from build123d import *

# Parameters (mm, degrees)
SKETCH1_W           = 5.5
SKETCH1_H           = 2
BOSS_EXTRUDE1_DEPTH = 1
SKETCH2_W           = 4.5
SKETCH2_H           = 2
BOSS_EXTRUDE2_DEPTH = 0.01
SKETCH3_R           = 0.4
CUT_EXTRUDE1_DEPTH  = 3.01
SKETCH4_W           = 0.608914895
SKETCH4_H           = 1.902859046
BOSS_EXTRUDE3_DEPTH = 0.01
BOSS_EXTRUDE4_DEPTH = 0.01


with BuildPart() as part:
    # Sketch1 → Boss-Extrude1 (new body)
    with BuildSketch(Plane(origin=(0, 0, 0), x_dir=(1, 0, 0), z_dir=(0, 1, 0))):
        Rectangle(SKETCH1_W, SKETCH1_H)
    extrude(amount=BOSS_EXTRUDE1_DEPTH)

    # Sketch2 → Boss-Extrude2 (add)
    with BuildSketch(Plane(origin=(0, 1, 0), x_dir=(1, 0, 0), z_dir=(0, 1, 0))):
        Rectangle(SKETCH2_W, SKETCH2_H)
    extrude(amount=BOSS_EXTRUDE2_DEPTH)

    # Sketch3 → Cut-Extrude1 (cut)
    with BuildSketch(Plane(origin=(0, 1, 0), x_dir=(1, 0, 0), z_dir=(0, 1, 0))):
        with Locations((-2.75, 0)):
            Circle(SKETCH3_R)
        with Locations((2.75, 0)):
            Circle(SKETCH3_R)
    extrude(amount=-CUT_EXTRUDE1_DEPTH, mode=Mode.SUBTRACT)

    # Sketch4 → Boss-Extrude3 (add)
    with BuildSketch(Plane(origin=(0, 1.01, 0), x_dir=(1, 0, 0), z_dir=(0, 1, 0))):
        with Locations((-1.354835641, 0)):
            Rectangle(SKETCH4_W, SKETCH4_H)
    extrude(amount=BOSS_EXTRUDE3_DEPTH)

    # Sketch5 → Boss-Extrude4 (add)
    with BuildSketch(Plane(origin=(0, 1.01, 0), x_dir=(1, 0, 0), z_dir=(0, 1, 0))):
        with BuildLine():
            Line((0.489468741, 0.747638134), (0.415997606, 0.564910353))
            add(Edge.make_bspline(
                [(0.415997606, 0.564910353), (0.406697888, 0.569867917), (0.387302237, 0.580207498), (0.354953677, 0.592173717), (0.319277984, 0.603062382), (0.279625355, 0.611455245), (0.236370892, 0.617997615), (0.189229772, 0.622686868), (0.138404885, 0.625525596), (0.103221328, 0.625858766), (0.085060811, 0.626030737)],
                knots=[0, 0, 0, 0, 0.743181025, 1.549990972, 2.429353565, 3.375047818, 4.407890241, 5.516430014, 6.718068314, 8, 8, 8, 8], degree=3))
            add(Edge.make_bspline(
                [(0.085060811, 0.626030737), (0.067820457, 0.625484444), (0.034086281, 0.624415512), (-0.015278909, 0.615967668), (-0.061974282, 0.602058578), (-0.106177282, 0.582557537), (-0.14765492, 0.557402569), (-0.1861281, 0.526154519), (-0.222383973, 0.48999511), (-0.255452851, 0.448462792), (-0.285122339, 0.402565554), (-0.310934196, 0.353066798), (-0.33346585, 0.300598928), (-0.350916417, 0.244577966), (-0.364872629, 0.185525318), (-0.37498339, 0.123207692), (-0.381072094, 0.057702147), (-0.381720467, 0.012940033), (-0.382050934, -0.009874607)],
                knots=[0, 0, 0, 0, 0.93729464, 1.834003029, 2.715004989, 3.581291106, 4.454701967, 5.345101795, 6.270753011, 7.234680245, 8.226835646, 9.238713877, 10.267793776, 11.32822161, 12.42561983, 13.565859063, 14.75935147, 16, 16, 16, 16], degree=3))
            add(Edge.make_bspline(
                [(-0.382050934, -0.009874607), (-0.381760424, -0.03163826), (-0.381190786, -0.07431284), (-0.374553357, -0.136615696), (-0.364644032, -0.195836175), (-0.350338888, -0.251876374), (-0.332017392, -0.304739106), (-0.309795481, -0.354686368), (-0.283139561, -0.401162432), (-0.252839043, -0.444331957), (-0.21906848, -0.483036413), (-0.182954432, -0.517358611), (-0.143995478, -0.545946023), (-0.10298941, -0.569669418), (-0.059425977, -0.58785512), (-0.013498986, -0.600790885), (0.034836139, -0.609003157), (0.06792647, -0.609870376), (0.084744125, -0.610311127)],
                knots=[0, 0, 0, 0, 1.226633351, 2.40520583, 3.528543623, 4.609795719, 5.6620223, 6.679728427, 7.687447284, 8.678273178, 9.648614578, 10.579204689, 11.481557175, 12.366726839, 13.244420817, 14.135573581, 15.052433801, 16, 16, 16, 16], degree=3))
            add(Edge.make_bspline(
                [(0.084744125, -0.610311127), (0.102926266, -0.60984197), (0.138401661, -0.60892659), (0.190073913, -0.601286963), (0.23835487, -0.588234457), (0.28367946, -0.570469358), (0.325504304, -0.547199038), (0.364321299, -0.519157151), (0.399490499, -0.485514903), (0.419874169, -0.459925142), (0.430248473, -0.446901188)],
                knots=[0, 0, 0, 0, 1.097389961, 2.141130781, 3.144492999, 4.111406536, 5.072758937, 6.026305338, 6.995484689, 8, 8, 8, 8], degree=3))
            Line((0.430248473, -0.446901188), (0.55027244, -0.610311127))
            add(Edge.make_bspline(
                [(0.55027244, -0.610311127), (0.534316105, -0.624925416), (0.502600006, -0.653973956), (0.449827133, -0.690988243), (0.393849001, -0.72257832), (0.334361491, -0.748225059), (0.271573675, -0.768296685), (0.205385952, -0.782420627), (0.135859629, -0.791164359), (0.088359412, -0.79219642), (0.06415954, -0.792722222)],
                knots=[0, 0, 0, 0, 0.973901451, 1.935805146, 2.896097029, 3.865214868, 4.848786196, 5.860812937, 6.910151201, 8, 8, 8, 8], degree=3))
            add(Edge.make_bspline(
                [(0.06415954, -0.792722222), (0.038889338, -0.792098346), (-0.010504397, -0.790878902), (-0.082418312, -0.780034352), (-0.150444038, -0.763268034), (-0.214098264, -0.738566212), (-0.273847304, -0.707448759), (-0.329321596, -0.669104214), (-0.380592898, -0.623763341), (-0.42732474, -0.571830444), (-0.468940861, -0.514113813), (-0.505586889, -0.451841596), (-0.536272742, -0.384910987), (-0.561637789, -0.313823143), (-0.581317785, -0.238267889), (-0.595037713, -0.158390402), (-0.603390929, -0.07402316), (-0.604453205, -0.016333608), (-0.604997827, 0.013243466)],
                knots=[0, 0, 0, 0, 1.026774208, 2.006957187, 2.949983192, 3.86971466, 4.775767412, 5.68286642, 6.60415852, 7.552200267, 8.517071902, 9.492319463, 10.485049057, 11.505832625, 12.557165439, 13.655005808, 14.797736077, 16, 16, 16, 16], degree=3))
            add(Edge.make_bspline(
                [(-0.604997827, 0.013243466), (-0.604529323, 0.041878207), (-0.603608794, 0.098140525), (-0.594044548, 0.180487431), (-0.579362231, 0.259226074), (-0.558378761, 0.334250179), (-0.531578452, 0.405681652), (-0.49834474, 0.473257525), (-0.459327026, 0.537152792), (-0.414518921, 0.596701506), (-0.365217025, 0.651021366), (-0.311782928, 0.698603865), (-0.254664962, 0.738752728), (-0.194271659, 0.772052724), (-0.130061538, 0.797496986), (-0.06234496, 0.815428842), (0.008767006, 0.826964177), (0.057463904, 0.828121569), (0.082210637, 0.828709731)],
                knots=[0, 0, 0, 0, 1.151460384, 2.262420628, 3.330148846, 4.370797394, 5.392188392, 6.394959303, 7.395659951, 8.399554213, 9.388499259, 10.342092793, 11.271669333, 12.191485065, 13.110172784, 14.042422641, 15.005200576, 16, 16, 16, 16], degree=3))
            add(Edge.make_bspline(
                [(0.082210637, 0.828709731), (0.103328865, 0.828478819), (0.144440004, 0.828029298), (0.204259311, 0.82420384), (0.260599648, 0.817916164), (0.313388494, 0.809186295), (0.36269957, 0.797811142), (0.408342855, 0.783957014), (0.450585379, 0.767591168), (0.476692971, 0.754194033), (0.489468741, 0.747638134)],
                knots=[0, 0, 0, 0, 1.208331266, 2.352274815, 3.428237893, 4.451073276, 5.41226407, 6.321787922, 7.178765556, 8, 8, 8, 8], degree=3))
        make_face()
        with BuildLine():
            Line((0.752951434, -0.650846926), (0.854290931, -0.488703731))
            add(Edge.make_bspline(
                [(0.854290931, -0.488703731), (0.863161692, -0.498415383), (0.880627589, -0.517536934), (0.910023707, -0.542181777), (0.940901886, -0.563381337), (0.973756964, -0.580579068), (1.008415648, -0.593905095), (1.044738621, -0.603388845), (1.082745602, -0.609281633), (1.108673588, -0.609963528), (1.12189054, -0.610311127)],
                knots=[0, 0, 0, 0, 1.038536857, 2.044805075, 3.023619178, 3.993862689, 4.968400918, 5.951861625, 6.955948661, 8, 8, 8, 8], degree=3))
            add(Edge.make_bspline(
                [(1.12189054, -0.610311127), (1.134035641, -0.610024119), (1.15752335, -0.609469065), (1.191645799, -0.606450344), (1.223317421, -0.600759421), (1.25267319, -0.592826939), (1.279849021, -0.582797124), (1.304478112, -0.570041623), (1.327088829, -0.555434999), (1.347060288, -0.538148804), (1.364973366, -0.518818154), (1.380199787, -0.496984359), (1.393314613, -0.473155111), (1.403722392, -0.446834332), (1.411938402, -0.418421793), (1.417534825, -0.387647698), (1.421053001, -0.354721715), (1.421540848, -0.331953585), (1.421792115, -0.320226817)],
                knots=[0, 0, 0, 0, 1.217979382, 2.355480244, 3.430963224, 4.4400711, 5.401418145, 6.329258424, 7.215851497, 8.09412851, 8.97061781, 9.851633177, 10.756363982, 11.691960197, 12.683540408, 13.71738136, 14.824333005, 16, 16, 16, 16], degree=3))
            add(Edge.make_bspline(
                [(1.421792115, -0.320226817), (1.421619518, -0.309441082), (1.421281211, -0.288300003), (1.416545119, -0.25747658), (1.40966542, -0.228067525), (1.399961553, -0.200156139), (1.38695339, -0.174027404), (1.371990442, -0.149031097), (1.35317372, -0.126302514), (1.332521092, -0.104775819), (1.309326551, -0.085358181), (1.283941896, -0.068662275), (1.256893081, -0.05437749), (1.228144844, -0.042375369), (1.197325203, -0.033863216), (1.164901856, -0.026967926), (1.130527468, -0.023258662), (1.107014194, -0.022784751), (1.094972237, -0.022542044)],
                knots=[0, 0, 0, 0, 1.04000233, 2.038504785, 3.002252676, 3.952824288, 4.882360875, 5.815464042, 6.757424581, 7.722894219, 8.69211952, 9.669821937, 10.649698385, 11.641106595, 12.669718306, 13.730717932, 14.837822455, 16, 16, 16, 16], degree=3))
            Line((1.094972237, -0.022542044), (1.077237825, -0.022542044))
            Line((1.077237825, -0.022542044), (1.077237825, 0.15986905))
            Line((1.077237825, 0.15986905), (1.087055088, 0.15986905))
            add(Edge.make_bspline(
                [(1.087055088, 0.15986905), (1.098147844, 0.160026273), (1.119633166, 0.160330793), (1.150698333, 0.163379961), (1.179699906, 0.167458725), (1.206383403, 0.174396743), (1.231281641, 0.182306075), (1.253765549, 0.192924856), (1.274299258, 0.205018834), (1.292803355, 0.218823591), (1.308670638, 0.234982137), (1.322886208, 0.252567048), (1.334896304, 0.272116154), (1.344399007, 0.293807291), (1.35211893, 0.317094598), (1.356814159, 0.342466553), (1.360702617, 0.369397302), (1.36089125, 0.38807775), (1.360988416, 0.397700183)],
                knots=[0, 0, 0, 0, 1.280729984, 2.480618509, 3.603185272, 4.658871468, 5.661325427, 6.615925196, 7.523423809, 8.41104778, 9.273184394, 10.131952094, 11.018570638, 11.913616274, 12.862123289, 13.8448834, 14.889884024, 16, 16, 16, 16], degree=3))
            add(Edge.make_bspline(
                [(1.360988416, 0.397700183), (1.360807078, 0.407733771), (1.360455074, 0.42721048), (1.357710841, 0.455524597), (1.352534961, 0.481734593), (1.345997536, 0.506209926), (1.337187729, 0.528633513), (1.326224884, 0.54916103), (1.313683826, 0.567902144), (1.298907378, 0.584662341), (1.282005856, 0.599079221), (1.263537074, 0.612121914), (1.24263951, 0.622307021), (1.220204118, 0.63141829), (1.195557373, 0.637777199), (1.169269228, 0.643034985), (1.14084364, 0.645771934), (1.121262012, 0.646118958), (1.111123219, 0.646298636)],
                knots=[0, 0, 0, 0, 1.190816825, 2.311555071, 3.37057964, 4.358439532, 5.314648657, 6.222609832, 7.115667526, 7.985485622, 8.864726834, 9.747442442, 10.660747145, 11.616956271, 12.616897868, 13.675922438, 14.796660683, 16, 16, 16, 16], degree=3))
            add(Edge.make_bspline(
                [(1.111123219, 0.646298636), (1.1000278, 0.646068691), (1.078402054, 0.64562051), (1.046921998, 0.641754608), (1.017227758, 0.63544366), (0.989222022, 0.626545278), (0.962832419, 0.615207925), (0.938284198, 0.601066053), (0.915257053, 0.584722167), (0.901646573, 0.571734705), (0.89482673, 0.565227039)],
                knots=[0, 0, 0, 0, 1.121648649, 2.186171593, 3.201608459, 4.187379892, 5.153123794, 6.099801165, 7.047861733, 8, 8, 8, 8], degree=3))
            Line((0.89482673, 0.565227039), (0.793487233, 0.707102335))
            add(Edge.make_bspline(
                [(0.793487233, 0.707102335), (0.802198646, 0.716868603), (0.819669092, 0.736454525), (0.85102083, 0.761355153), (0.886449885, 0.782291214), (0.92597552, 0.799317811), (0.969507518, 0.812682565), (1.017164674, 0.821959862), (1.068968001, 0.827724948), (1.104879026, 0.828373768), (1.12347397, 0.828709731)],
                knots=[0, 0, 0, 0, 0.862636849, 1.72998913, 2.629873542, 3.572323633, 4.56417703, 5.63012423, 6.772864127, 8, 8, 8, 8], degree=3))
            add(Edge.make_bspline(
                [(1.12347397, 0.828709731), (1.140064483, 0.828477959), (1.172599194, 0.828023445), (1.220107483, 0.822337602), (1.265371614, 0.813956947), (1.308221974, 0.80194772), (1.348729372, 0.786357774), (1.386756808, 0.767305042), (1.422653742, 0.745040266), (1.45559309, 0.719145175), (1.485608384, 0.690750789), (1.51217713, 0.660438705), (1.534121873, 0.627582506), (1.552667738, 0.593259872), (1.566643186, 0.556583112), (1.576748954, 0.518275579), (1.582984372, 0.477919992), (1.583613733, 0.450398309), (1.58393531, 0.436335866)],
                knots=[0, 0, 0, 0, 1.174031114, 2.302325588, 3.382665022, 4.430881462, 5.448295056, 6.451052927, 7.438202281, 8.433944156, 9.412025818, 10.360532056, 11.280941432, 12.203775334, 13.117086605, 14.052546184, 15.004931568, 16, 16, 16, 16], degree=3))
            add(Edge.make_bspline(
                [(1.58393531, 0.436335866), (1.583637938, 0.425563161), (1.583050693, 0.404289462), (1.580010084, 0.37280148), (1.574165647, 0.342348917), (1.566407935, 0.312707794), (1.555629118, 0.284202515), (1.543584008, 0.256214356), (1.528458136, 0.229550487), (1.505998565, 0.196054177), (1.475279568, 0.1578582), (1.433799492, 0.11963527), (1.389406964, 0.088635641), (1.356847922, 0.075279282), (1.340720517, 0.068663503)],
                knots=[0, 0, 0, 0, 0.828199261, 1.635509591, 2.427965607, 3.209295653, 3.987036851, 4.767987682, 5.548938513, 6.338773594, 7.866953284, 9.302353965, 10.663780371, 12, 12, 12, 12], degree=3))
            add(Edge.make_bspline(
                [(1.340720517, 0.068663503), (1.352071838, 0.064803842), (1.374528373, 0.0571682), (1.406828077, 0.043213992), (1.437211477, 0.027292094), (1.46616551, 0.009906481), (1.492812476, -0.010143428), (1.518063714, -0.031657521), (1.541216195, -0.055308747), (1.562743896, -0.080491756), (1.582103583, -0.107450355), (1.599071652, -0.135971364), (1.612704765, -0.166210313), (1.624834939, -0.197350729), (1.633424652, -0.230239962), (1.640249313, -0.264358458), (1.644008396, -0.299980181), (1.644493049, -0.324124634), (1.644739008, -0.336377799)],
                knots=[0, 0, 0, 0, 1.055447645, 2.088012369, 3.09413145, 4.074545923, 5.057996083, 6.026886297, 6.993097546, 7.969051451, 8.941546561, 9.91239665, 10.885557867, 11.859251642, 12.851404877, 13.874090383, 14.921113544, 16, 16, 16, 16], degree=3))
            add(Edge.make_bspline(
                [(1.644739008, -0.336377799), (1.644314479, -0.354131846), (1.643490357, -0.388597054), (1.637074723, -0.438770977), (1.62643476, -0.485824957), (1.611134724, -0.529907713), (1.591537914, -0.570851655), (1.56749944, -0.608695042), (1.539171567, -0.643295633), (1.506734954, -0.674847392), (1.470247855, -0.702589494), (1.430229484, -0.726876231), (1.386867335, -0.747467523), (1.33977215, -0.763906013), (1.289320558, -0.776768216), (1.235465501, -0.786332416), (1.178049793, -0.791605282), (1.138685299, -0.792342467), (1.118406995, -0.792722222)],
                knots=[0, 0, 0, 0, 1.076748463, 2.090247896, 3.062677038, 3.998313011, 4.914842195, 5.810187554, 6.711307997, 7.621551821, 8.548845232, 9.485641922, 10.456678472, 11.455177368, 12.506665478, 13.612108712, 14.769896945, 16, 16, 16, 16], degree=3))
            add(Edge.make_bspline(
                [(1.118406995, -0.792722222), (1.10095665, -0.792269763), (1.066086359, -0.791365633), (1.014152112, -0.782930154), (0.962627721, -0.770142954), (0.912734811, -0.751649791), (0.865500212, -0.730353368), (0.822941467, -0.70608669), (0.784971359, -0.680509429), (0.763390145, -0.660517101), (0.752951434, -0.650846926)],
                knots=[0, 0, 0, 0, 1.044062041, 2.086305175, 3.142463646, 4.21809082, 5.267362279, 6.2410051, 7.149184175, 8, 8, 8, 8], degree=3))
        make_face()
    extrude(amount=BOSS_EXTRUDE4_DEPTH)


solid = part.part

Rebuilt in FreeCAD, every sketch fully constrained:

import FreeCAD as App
import Part
import Sketcher

V = App.Vector


def add_polygon(sketch, points):
    """Adds a closed chain of lines whose ends are joined by coincident constraints."""
    first, n = sketch.GeometryCount, len(points)
    for a, b in zip(points, points[1:] + points[:1]):
        sketch.addGeometry(Part.LineSegment(App.Vector(*a, 0), App.Vector(*b, 0)), False)
    for i in range(n):
        sketch.addConstraint(Sketcher.Constraint("Coincident", first + i, 2, first + (i + 1) % n, 1))

doc = App.newDocument("Part")
body = doc.addObject("PartDesign::Body", "Body")

# Sketch on XZ plane
sketch1 = body.newObject("Sketcher::SketchObject", "Sketch")
sketch1.AttachmentSupport = (doc.getObject("XZ_Plane"), [""])
sketch1.MapMode = "FlatFace"
add_polygon(sketch1, [(-2.75, -1), (-2.75, 1), (2.75, 1), (2.75, -1)])  # lines 0-3
sketch1.addConstraint([
    Sketcher.Constraint("Vertical", 0),
    Sketcher.Constraint("Horizontal", 1),
    Sketcher.Constraint("Vertical", 2),
    Sketcher.Constraint("Horizontal", 3),
    Sketcher.Constraint("Symmetric", 0, 2, 2, 2, -1, 1),
    Sketcher.Constraint("DistanceY", 0, 1, 0, 2, 2.0),
    Sketcher.Constraint("DistanceX", 1, 1, 1, 2, 5.5),
])
pad1 = body.newObject("PartDesign::Pad", "Pad")
pad1.Profile = sketch1
pad1.Length = 1
pad1.Reversed = True

# Sketch on XZ plane
sketch2 = body.newObject("Sketcher::SketchObject", "Sketch001")
sketch2.AttachmentSupport = (doc.getObject("XZ_Plane"), [""])
sketch2.MapMode = "FlatFace"
sketch2.AttachmentOffset = App.Placement(V(0, 0, -1), App.Rotation())
add_polygon(sketch2, [(-2.25, -1), (-2.25, 1), (2.25, 1), (2.25, -1)])  # lines 0-3
sketch2.addConstraint([
    Sketcher.Constraint("Vertical", 0),
    Sketcher.Constraint("Horizontal", 1),
    Sketcher.Constraint("Vertical", 2),
    Sketcher.Constraint("Horizontal", 3),
    Sketcher.Constraint("Symmetric", 0, 2, 2, 2, -1, 1),
    Sketcher.Constraint("DistanceY", 0, 1, 0, 2, 2.0),
    Sketcher.Constraint("DistanceX", 1, 1, 1, 2, 4.5),
])
pad2 = body.newObject("PartDesign::Pad", "Pad001")
pad2.Profile = sketch2
pad2.Length = 0.01
pad2.Reversed = True

# Sketch on XZ plane
sketch3 = body.newObject("Sketcher::SketchObject", "Sketch002")
sketch3.AttachmentSupport = (doc.getObject("XZ_Plane"), [""])
sketch3.MapMode = "FlatFace"
sketch3.AttachmentOffset = App.Placement(V(0, 0, -1), App.Rotation())
sketch3.addGeometry([
    Part.Circle(V(-2.75, 0, 0), V(0, 0, 1), 0.4),
    Part.Circle(V(2.75, 0, 0), V(0, 0, 1), 0.4),
], False)
sketch3.addConstraint([
    Sketcher.Constraint("Equal", 0, 1),
    Sketcher.Constraint("Symmetric", 0, 3, 1, 3, -1, 1),
    Sketcher.Constraint("PointOnObject", 0, 3, -1),
    Sketcher.Constraint("Diameter", 0, 0.8),
    Sketcher.Constraint("DistanceX", 0, 3, 1, 3, 5.5),
])
pocket1 = body.newObject("PartDesign::Pocket", "Pocket")
pocket1.Profile = sketch3
pocket1.Length = 3.01
pocket1.Reversed = True

# Sketch on XZ plane
sketch4 = body.newObject("Sketcher::SketchObject", "Sketch003")
sketch4.AttachmentSupport = (doc.getObject("XZ_Plane"), [""])
sketch4.MapMode = "FlatFace"
sketch4.AttachmentOffset = App.Placement(V(0, 0, -1.01), App.Rotation())
add_polygon(sketch4, [(-1.659293, -0.95143), (-1.659293, 0.95143), (-1.050378, 0.95143), (-1.050378, -0.95143)])  # lines 0-3
sketch4.addConstraint([
    Sketcher.Constraint("Vertical", 0),
    Sketcher.Constraint("Horizontal", 1),
    Sketcher.Constraint("Vertical", 2),
    Sketcher.Constraint("Horizontal", 3),
    Sketcher.Constraint("DistanceY", 0, 1, 0, 2, 1.902859),
    Sketcher.Constraint("DistanceX", 1, 1, 1, 2, 0.608915),
    Sketcher.Constraint("DistanceY", -1, 1, 0, 2, 0.95143),
    Sketcher.Constraint("DistanceX", 1, 2, -1, 1, 1.050378),
])
pad3 = body.newObject("PartDesign::Pad", "Pad002")
pad3.Profile = sketch4
pad3.Length = 0.01
pad3.Reversed = True

# Sketch on XZ plane
sketch5 = body.newObject("Sketcher::SketchObject", "Sketch004")
sketch5.AttachmentSupport = (doc.getObject("XZ_Plane"), [""])
sketch5.MapMode = "FlatFace"
sketch5.AttachmentOffset = App.Placement(V(0, 0, -1.01), App.Rotation())
sketch5.addGeometry([
    Part.LineSegment(V(0.415998, -0.56491, 0), V(0.489469, -0.747638, 0)),  # 0
    Part.BSplineCurve([V(0.082211, -0.82871, 0), V(0.103329, -0.828479, 0), V(0.14444, -0.828029, 0), V(0.204259, -0.824204, 0), V(0.2606, -0.817916, 0), V(0.313388, -0.809186, 0), V(0.3627, -0.797811, 0), V(0.408343, -0.783957, 0), V(0.450585, -0.767591, 0), V(0.476693, -0.754194, 0), V(0.489469, -0.747638, 0)], [4, 1, 1, 1, 1, 1, 1, 1, 4], [0, 1.208331266, 2.352274815, 3.428237893, 4.451073276, 5.41226407, 6.321787922, 7.178765556, 8], False, 3, [1, 1, 1, 1, 1, 1, 1, 1, 1, 1, 1], False),  # 1
    Part.BSplineCurve([V(-0.604998, -0.013243, 0), V(-0.604529, -0.041878, 0), V(-0.603609, -0.098141, 0), V(-0.594045, -0.180487, 0), V(-0.579362, -0.259226, 0), V(-0.558379, -0.33425, 0), V(-0.531578, -0.405682, 0), V(-0.498345, -0.473258, 0), V(-0.459327, -0.537153, 0), V(-0.414519, -0.596702, 0), V(-0.365217, -0.651021, 0), V(-0.311783, -0.698604, 0), V(-0.254665, -0.738753, 0), V(-0.194272, -0.772053, 0), V(-0.130062, -0.797497, 0), V(-0.062345, -0.815429, 0), V(0.008767, -0.826964, 0), V(0.057464, -0.828122, 0), V(0.082211, -0.82871, 0)], [4, 1, 1, 1, 1, 1, 1, 1, 1, 1, 1, 1, 1, 1, 1, 1, 4], [0, 1.151460384, 2.262420628, 3.330148846, 4.370797394, 5.392188392, 6.394959303, 7.395659951, 8.399554213, 9.388499259, 10.342092793, 11.271669333, 12.191485065, 13.110172784, 14.042422641, 15.005200576, 16], False, 3, [1, 1, 1, 1, 1, 1, 1, 1, 1, 1, 1, 1, 1, 1, 1, 1, 1, 1, 1], False),  # 2
    Part.BSplineCurve([V(0.06416, 0.792722, 0), V(0.038889, 0.792098, 0), V(-0.010504, 0.790879, 0), V(-0.082418, 0.780034, 0), V(-0.150444, 0.763268, 0), V(-0.214098, 0.738566, 0), V(-0.273847, 0.707449, 0), V(-0.329322, 0.669104, 0), V(-0.380593, 0.623763, 0), V(-0.427325, 0.57183, 0), V(-0.468941, 0.514114, 0), V(-0.505587, 0.451842, 0), V(-0.536273, 0.384911, 0), V(-0.561638, 0.313823, 0), V(-0.581318, 0.238268, 0), V(-0.595038, 0.15839, 0), V(-0.603391, 0.074023, 0), V(-0.604453, 0.016334, 0), V(-0.604998, -0.013243, 0)], [4, 1, 1, 1, 1, 1, 1, 1, 1, 1, 1, 1, 1, 1, 1, 1, 4], [0, 1.026774208, 2.006957187, 2.949983192, 3.86971466, 4.775767412, 5.68286642, 6.60415852, 7.552200267, 8.517071902, 9.492319463, 10.485049057, 11.505832625, 12.557165439, 13.655005808, 14.797736077, 16], False, 3, [1, 1, 1, 1, 1, 1, 1, 1, 1, 1, 1, 1, 1, 1, 1, 1, 1, 1, 1], False),  # 3
    Part.BSplineCurve([V(0.550272, 0.610311, 0), V(0.534316, 0.624925, 0), V(0.5026, 0.653974, 0), V(0.449827, 0.690988, 0), V(0.393849, 0.722578, 0), V(0.334361, 0.748225, 0), V(0.271574, 0.768297, 0), V(0.205386, 0.782421, 0), V(0.13586, 0.791164, 0), V(0.088359, 0.792196, 0), V(0.06416, 0.792722, 0)], [4, 1, 1, 1, 1, 1, 1, 1, 4], [0, 0.973901451, 1.935805146, 2.896097029, 3.865214868, 4.848786196, 5.860812937, 6.910151201, 8], False, 3, [1, 1, 1, 1, 1, 1, 1, 1, 1, 1, 1], False),  # 4
    Part.LineSegment(V(0.550272, 0.610311, 0), V(0.430248, 0.446901, 0)),  # 5
    Part.BSplineCurve([V(0.084744, 0.610311, 0), V(0.102926, 0.609842, 0), V(0.138402, 0.608927, 0), V(0.190074, 0.601287, 0), V(0.238355, 0.588234, 0), V(0.283679, 0.570469, 0), V(0.325504, 0.547199, 0), V(0.364321, 0.519157, 0), V(0.39949, 0.485515, 0), V(0.419874, 0.459925, 0), V(0.430248, 0.446901, 0)], [4, 1, 1, 1, 1, 1, 1, 1, 4], [0, 1.097389961, 2.141130781, 3.144492999, 4.111406536, 5.072758937, 6.026305338, 6.995484689, 8], False, 3, [1, 1, 1, 1, 1, 1, 1, 1, 1, 1, 1], False),  # 6
    Part.BSplineCurve([V(-0.382051, 0.009875, 0), V(-0.38176, 0.031638, 0), V(-0.381191, 0.074313, 0), V(-0.374553, 0.136616, 0), V(-0.364644, 0.195836, 0), V(-0.350339, 0.251876, 0), V(-0.332017, 0.304739, 0), V(-0.309795, 0.354686, 0), V(-0.28314, 0.401162, 0), V(-0.252839, 0.444332, 0), V(-0.219068, 0.483036, 0), V(-0.182954, 0.517359, 0), V(-0.143995, 0.545946, 0), V(-0.102989, 0.569669, 0), V(-0.059426, 0.587855, 0), V(-0.013499, 0.600791, 0), V(0.034836, 0.609003, 0), V(0.067926, 0.60987, 0), V(0.084744, 0.610311, 0)], [4, 1, 1, 1, 1, 1, 1, 1, 1, 1, 1, 1, 1, 1, 1, 1, 4], [0, 1.226633351, 2.40520583, 3.528543623, 4.609795719, 5.6620223, 6.679728427, 7.687447284, 8.678273178, 9.648614578, 10.579204689, 11.481557175, 12.366726839, 13.244420817, 14.135573581, 15.052433801, 16], False, 3, [1, 1, 1, 1, 1, 1, 1, 1, 1, 1, 1, 1, 1, 1, 1, 1, 1, 1, 1], False),  # 7
    Part.BSplineCurve([V(0.085061, -0.626031, 0), V(0.06782, -0.625484, 0), V(0.034086, -0.624416, 0), V(-0.015279, -0.615968, 0), V(-0.061974, -0.602059, 0), V(-0.106177, -0.582558, 0), V(-0.147655, -0.557403, 0), V(-0.186128, -0.526155, 0), V(-0.222384, -0.489995, 0), V(-0.255453, -0.448463, 0), V(-0.285122, -0.402566, 0), V(-0.310934, -0.353067, 0), V(-0.333466, -0.300599, 0), V(-0.350916, -0.244578, 0), V(-0.364873, -0.185525, 0), V(-0.374983, -0.123208, 0), V(-0.381072, -0.057702, 0), V(-0.38172, -0.01294, 0), V(-0.382051, 0.009875, 0)], [4, 1, 1, 1, 1, 1, 1, 1, 1, 1, 1, 1, 1, 1, 1, 1, 4], [0, 0.93729464, 1.834003029, 2.715004989, 3.581291106, 4.454701967, 5.345101795, 6.270753011, 7.234680245, 8.226835646, 9.238713877, 10.267793776, 11.32822161, 12.42561983, 13.565859063, 14.75935147, 16], False, 3, [1, 1, 1, 1, 1, 1, 1, 1, 1, 1, 1, 1, 1, 1, 1, 1, 1, 1, 1], False),  # 8
    Part.BSplineCurve([V(0.415998, -0.56491, 0), V(0.406698, -0.569868, 0), V(0.387302, -0.580207, 0), V(0.354954, -0.592174, 0), V(0.319278, -0.603062, 0), V(0.279625, -0.611455, 0), V(0.236371, -0.617998, 0), V(0.18923, -0.622687, 0), V(0.138405, -0.625526, 0), V(0.103221, -0.625859, 0), V(0.085061, -0.626031, 0)], [4, 1, 1, 1, 1, 1, 1, 1, 4], [0, 0.743181025, 1.549990972, 2.429353565, 3.375047818, 4.407890241, 5.516430014, 6.718068314, 8], False, 3, [1, 1, 1, 1, 1, 1, 1, 1, 1, 1, 1], False),  # 9
    Part.LineSegment(V(0.854291, 0.488704, 0), V(0.752951, 0.650847, 0)),  # 10
    Part.BSplineCurve([V(1.118407, 0.792722, 0), V(1.100957, 0.79227, 0), V(1.066086, 0.791366, 0), V(1.014152, 0.78293, 0), V(0.962628, 0.770143, 0), V(0.912735, 0.75165, 0), V(0.8655, 0.730353, 0), V(0.822941, 0.706087, 0), V(0.784971, 0.680509, 0), V(0.76339, 0.660517, 0), V(0.752951, 0.650847, 0)], [4, 1, 1, 1, 1, 1, 1, 1, 4], [0, 1.044062041, 2.086305175, 3.142463646, 4.21809082, 5.267362279, 6.2410051, 7.149184175, 8], False, 3, [1, 1, 1, 1, 1, 1, 1, 1, 1, 1, 1], False),  # 11
    Part.BSplineCurve([V(1.644739, 0.336378, 0), V(1.644314, 0.354132, 0), V(1.64349, 0.388597, 0), V(1.637075, 0.438771, 0), V(1.626435, 0.485825, 0), V(1.611135, 0.529908, 0), V(1.591538, 0.570852, 0), V(1.567499, 0.608695, 0), V(1.539172, 0.643296, 0), V(1.506735, 0.674847, 0), V(1.470248, 0.702589, 0), V(1.430229, 0.726876, 0), V(1.386867, 0.747468, 0), V(1.339772, 0.763906, 0), V(1.289321, 0.776768, 0), V(1.235466, 0.786332, 0), V(1.17805, 0.791605, 0), V(1.138685, 0.792342, 0), V(1.118407, 0.792722, 0)], [4, 1, 1, 1, 1, 1, 1, 1, 1, 1, 1, 1, 1, 1, 1, 1, 4], [0, 1.076748463, 2.090247896, 3.062677038, 3.998313011, 4.914842195, 5.810187554, 6.711307997, 7.621551821, 8.548845232, 9.485641922, 10.456678472, 11.455177368, 12.506665478, 13.612108712, 14.769896945, 16], False, 3, [1, 1, 1, 1, 1, 1, 1, 1, 1, 1, 1, 1, 1, 1, 1, 1, 1, 1, 1], False),  # 12
    Part.BSplineCurve([V(1.340721, -0.068664, 0), V(1.352072, -0.064804, 0), V(1.374528, -0.057168, 0), V(1.406828, -0.043214, 0), V(1.437211, -0.027292, 0), V(1.466166, -0.009906, 0), V(1.492812, 0.010143, 0), V(1.518064, 0.031658, 0), V(1.541216, 0.055309, 0), V(1.562744, 0.080492, 0), V(1.582104, 0.10745, 0), V(1.599072, 0.135971, 0), V(1.612705, 0.16621, 0), V(1.624835, 0.197351, 0), V(1.633425, 0.23024, 0), V(1.640249, 0.264358, 0), V(1.644008, 0.29998, 0), V(1.644493, 0.324125, 0), V(1.644739, 0.336378, 0)], [4, 1, 1, 1, 1, 1, 1, 1, 1, 1, 1, 1, 1, 1, 1, 1, 4], [0, 1.055447645, 2.088012369, 3.09413145, 4.074545923, 5.057996083, 6.026886297, 6.993097546, 7.969051451, 8.941546561, 9.91239665, 10.885557867, 11.859251642, 12.851404877, 13.874090383, 14.921113544, 16], False, 3, [1, 1, 1, 1, 1, 1, 1, 1, 1, 1, 1, 1, 1, 1, 1, 1, 1, 1, 1], False),  # 13
    Part.BSplineCurve([V(1.583935, -0.436336, 0), V(1.583638, -0.425563, 0), V(1.583051, -0.404289, 0), V(1.58001, -0.372801, 0), V(1.574166, -0.342349, 0), V(1.566408, -0.312708, 0), V(1.555629, -0.284203, 0), V(1.543584, -0.256214, 0), V(1.528458, -0.22955, 0), V(1.505999, -0.196054, 0), V(1.47528, -0.157858, 0), V(1.433799, -0.119635, 0), V(1.389407, -0.088636, 0), V(1.356848, -0.075279, 0), V(1.340721, -0.068664, 0)], [4, 1, 1, 1, 1, 1, 1, 1, 1, 1, 1, 1, 4], [0, 0.828199261, 1.635509591, 2.427965607, 3.209295653, 3.987036851, 4.767987682, 5.548938513, 6.338773594, 7.866953284, 9.302353965, 10.663780371, 12], False, 3, [1, 1, 1, 1, 1, 1, 1, 1, 1, 1, 1, 1, 1, 1, 1], False),  # 14
    Part.BSplineCurve([V(1.123474, -0.82871, 0), V(1.140064, -0.828478, 0), V(1.172599, -0.828023, 0), V(1.220107, -0.822338, 0), V(1.265372, -0.813957, 0), V(1.308222, -0.801948, 0), V(1.348729, -0.786358, 0), V(1.386757, -0.767305, 0), V(1.422654, -0.74504, 0), V(1.455593, -0.719145, 0), V(1.485608, -0.690751, 0), V(1.512177, -0.660439, 0), V(1.534122, -0.627583, 0), V(1.552668, -0.59326, 0), V(1.566643, -0.556583, 0), V(1.576749, -0.518276, 0), V(1.582984, -0.47792, 0), V(1.583614, -0.450398, 0), V(1.583935, -0.436336, 0)], [4, 1, 1, 1, 1, 1, 1, 1, 1, 1, 1, 1, 1, 1, 1, 1, 4], [0, 1.174031114, 2.302325588, 3.382665022, 4.430881462, 5.448295056, 6.451052927, 7.438202281, 8.433944156, 9.412025818, 10.360532056, 11.280941432, 12.203775334, 13.117086605, 14.052546184, 15.004931568, 16], False, 3, [1, 1, 1, 1, 1, 1, 1, 1, 1, 1, 1, 1, 1, 1, 1, 1, 1, 1, 1], False),  # 15
    Part.BSplineCurve([V(0.793487, -0.707102, 0), V(0.802199, -0.716869, 0), V(0.819669, -0.736455, 0), V(0.851021, -0.761355, 0), V(0.88645, -0.782291, 0), V(0.925976, -0.799318, 0), V(0.969508, -0.812683, 0), V(1.017165, -0.82196, 0), V(1.068968, -0.827725, 0), V(1.104879, -0.828374, 0), V(1.123474, -0.82871, 0)], [4, 1, 1, 1, 1, 1, 1, 1, 4], [0, 0.862636849, 1.72998913, 2.629873542, 3.572323633, 4.56417703, 5.63012423, 6.772864127, 8], False, 3, [1, 1, 1, 1, 1, 1, 1, 1, 1, 1, 1], False),  # 16
    Part.LineSegment(V(0.793487, -0.707102, 0), V(0.894827, -0.565227, 0)),  # 17
    Part.BSplineCurve([V(1.111123, -0.646299, 0), V(1.100028, -0.646069, 0), V(1.078402, -0.645621, 0), V(1.046922, -0.641755, 0), V(1.017228, -0.635444, 0), V(0.989222, -0.626545, 0), V(0.962832, -0.615208, 0), V(0.938284, -0.601066, 0), V(0.915257, -0.584722, 0), V(0.901647, -0.571735, 0), V(0.894827, -0.565227, 0)], [4, 1, 1, 1, 1, 1, 1, 1, 4], [0, 1.121648649, 2.186171593, 3.201608459, 4.187379892, 5.153123794, 6.099801165, 7.047861733, 8], False, 3, [1, 1, 1, 1, 1, 1, 1, 1, 1, 1, 1], False),  # 18
    Part.BSplineCurve([V(1.360988, -0.3977, 0), V(1.360807, -0.407734, 0), V(1.360455, -0.42721, 0), V(1.357711, -0.455525, 0), V(1.352535, -0.481735, 0), V(1.345998, -0.50621, 0), V(1.337188, -0.528634, 0), V(1.326225, -0.549161, 0), V(1.313684, -0.567902, 0), V(1.298907, -0.584662, 0), V(1.282006, -0.599079, 0), V(1.263537, -0.612122, 0), V(1.24264, -0.622307, 0), V(1.220204, -0.631418, 0), V(1.195557, -0.637777, 0), V(1.169269, -0.643035, 0), V(1.140844, -0.645772, 0), V(1.121262, -0.646119, 0), V(1.111123, -0.646299, 0)], [4, 1, 1, 1, 1, 1, 1, 1, 1, 1, 1, 1, 1, 1, 1, 1, 4], [0, 1.190816825, 2.311555071, 3.37057964, 4.358439532, 5.314648657, 6.222609832, 7.115667526, 7.985485622, 8.864726834, 9.747442442, 10.660747145, 11.616956271, 12.616897868, 13.675922438, 14.796660683, 16], False, 3, [1, 1, 1, 1, 1, 1, 1, 1, 1, 1, 1, 1, 1, 1, 1, 1, 1, 1, 1], False),  # 19
    Part.BSplineCurve([V(1.087055, -0.159869, 0), V(1.098148, -0.160026, 0), V(1.119633, -0.160331, 0), V(1.150698, -0.16338, 0), V(1.1797, -0.167459, 0), V(1.206383, -0.174397, 0), V(1.231282, -0.182306, 0), V(1.253766, -0.192925, 0), V(1.274299, -0.205019, 0), V(1.292803, -0.218824, 0), V(1.308671, -0.234982, 0), V(1.322886, -0.252567, 0), V(1.334896, -0.272116, 0), V(1.344399, -0.293807, 0), V(1.352119, -0.317095, 0), V(1.356814, -0.342467, 0), V(1.360703, -0.369397, 0), V(1.360891, -0.388078, 0), V(1.360988, -0.3977, 0)], [4, 1, 1, 1, 1, 1, 1, 1, 1, 1, 1, 1, 1, 1, 1, 1, 4], [0, 1.280729984, 2.480618509, 3.603185272, 4.658871468, 5.661325427, 6.615925196, 7.523423809, 8.41104778, 9.273184394, 10.131952094, 11.018570638, 11.913616274, 12.862123289, 13.8448834, 14.889884024, 16], False, 3, [1, 1, 1, 1, 1, 1, 1, 1, 1, 1, 1, 1, 1, 1, 1, 1, 1, 1, 1], False),  # 20
    Part.LineSegment(V(1.087055, -0.159869, 0), V(1.077238, -0.159869, 0)),  # 21
    Part.LineSegment(V(1.077238, -0.159869, 0), V(1.077238, 0.022542, 0)),  # 22
    Part.LineSegment(V(1.077238, 0.022542, 0), V(1.094972, 0.022542, 0)),  # 23
    Part.BSplineCurve([V(1.421792, 0.320227, 0), V(1.42162, 0.309441, 0), V(1.421281, 0.2883, 0), V(1.416545, 0.257477, 0), V(1.409665, 0.228068, 0), V(1.399962, 0.200156, 0), V(1.386953, 0.174027, 0), V(1.37199, 0.149031, 0), V(1.353174, 0.126303, 0), V(1.332521, 0.104776, 0), V(1.309327, 0.085358, 0), V(1.283942, 0.068662, 0), V(1.256893, 0.054377, 0), V(1.228145, 0.042375, 0), V(1.197325, 0.033863, 0), V(1.164902, 0.026968, 0), V(1.130527, 0.023259, 0), V(1.107014, 0.022785, 0), V(1.094972, 0.022542, 0)], [4, 1, 1, 1, 1, 1, 1, 1, 1, 1, 1, 1, 1, 1, 1, 1, 4], [0, 1.04000233, 2.038504785, 3.002252676, 3.952824288, 4.882360875, 5.815464042, 6.757424581, 7.722894219, 8.69211952, 9.669821937, 10.649698385, 11.641106595, 12.669718306, 13.730717932, 14.837822455, 16], False, 3, [1, 1, 1, 1, 1, 1, 1, 1, 1, 1, 1, 1, 1, 1, 1, 1, 1, 1, 1], False),  # 24
    Part.BSplineCurve([V(1.121891, 0.610311, 0), V(1.134036, 0.610024, 0), V(1.157523, 0.609469, 0), V(1.191646, 0.60645, 0), V(1.223317, 0.600759, 0), V(1.252673, 0.592827, 0), V(1.279849, 0.582797, 0), V(1.304478, 0.570042, 0), V(1.327089, 0.555435, 0), V(1.34706, 0.538149, 0), V(1.364973, 0.518818, 0), V(1.3802, 0.496984, 0), V(1.393315, 0.473155, 0), V(1.403722, 0.446834, 0), V(1.411938, 0.418422, 0), V(1.417535, 0.387648, 0), V(1.421053, 0.354722, 0), V(1.421541, 0.331954, 0), V(1.421792, 0.320227, 0)], [4, 1, 1, 1, 1, 1, 1, 1, 1, 1, 1, 1, 1, 1, 1, 1, 4], [0, 1.217979382, 2.355480244, 3.430963224, 4.4400711, 5.401418145, 6.329258424, 7.215851497, 8.09412851, 8.97061781, 9.851633177, 10.756363982, 11.691960197, 12.683540408, 13.71738136, 14.824333005, 16], False, 3, [1, 1, 1, 1, 1, 1, 1, 1, 1, 1, 1, 1, 1, 1, 1, 1, 1, 1, 1], False),  # 25
    Part.BSplineCurve([V(0.854291, 0.488704, 0), V(0.863162, 0.498415, 0), V(0.880628, 0.517537, 0), V(0.910024, 0.542182, 0), V(0.940902, 0.563381, 0), V(0.973757, 0.580579, 0), V(1.008416, 0.593905, 0), V(1.044739, 0.603389, 0), V(1.082746, 0.609282, 0), V(1.108674, 0.609964, 0), V(1.121891, 0.610311, 0)], [4, 1, 1, 1, 1, 1, 1, 1, 4], [0, 1.038536857, 2.044805075, 3.023619178, 3.993862689, 4.968400918, 5.951861625, 6.955948661, 8], False, 3, [1, 1, 1, 1, 1, 1, 1, 1, 1, 1, 1], False),  # 26
], False)
sketch5.addConstraint([
    Sketcher.Constraint("Block", 1),
    Sketcher.Constraint("Block", 2),
    Sketcher.Constraint("Block", 3),
    Sketcher.Constraint("Block", 4),
    Sketcher.Constraint("Block", 6),
    Sketcher.Constraint("Block", 7),
    Sketcher.Constraint("Block", 8),
    Sketcher.Constraint("Block", 9),
    Sketcher.Constraint("Block", 11),
    Sketcher.Constraint("Block", 12),
    Sketcher.Constraint("Block", 13),
    Sketcher.Constraint("Block", 14),
    Sketcher.Constraint("Block", 15),
    Sketcher.Constraint("Block", 16),
    Sketcher.Constraint("Block", 18),
    Sketcher.Constraint("Block", 19),
    Sketcher.Constraint("Block", 20),
    Sketcher.Constraint("Block", 24),
    Sketcher.Constraint("Block", 25),
    Sketcher.Constraint("Block", 26),
    Sketcher.Constraint("Coincident", 0, 2, 1, 2),
    Sketcher.Constraint("Coincident", 4, 1, 5, 1),
    Sketcher.Constraint("Coincident", 5, 2, 6, 2),
    Sketcher.Constraint("Coincident", 9, 1, 0, 1),
    Sketcher.Constraint("Coincident", 10, 2, 11, 2),
    Sketcher.Constraint("Coincident", 16, 1, 17, 1),
    Sketcher.Constraint("Coincident", 17, 2, 18, 2),
    Sketcher.Constraint("Coincident", 20, 1, 21, 1),
    Sketcher.Constraint("Coincident", 21, 2, 22, 1),
    Sketcher.Constraint("Coincident", 22, 2, 23, 1),
    Sketcher.Constraint("Coincident", 23, 2, 24, 2),
    Sketcher.Constraint("Coincident", 26, 1, 10, 1),
    Sketcher.Constraint("Horizontal", 21),
    Sketcher.Constraint("Vertical", 22),
    Sketcher.Constraint("Horizontal", 23),
    Sketcher.Constraint("DistanceX", 21, 2, 21, 1, 0.009817),
])
pad4 = body.newObject("PartDesign::Pad", "Pad003")
pad4.Profile = sketch5
pad4.Length = 0.01
pad4.Reversed = True

doc.recompute()
